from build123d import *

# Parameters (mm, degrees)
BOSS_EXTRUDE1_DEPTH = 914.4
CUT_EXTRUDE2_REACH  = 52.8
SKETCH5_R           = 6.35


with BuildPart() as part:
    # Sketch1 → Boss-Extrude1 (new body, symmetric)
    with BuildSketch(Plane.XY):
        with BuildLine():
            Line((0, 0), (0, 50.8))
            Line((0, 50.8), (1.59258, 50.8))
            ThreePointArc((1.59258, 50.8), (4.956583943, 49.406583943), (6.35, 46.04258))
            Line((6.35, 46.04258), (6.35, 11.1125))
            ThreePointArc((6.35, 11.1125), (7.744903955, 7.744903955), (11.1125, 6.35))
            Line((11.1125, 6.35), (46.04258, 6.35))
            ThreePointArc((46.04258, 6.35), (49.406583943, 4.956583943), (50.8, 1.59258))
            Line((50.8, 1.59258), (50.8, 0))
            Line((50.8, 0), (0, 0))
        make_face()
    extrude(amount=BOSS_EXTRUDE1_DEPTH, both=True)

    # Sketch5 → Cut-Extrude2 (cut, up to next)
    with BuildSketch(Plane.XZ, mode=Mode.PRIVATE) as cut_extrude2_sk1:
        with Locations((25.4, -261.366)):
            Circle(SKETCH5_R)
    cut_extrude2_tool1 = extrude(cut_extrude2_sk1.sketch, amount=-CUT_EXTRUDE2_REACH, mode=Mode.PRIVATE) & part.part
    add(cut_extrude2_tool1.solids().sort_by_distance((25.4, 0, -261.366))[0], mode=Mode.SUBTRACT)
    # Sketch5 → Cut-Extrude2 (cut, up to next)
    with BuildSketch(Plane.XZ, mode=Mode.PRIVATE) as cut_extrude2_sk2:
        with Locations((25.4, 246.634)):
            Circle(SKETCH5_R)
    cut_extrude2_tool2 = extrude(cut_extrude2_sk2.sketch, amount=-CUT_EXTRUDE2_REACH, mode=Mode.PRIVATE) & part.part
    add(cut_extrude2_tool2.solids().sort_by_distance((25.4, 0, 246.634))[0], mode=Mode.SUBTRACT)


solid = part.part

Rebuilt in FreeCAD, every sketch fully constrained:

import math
import FreeCAD as App
import Part
import Sketcher

V = App.Vector
Q = App.Units.Quantity

doc = App.newDocument("Part")
body = doc.addObject("PartDesign::Body", "Body")

sketch1 = body.newObject("Sketcher::SketchObject", "Sketch")
sketch1.AttachmentSupport = (doc.getObject("XY_Plane"), [""])
sketch1.MapMode = "FlatFace"
sketch1.addGeometry(Part.LineSegment(V(0, 50.8, 0), V(0, 0, 0)), False)
sketch1.addGeometry(Part.LineSegment(V(0, 0, 0), V(50.8, 0, 0)), False)
sketch1.addGeometry(Part.LineSegment(V(50.8, 0, 0), V(50.8, 1.6, 0)), False)
sketch1.addGeometry(Part.ArcOfCircle(Part.Circle(V(46, 1.6, 0), V(0, 0, 1), 4.8), math.radians(0), math.radians(90)), False)
sketch1.addGeometry(Part.LineSegment(V(46, 6.3, 0), V(11.1, 6.3, 0)), False)
sketch1.addGeometry(Part.ArcOfCircle(Part.Circle(V(11.1, 11.1, 0), V(0, 0, 1), 4.8), math.radians(-180), math.radians(-90)), False)
sketch1.addGeometry(Part.LineSegment(V(6.3, 11.1, 0), V(6.3, 46, 0)), False)
sketch1.addGeometry(Part.ArcOfCircle(Part.Circle(V(1.6, 46, 0), V(0, 0, 1), 4.8), math.radians(0), math.radians(90)), False)
sketch1.addGeometry(Part.LineSegment(V(1.6, 50.8, 0), V(0, 50.8, 0)), False)
sketch1.addConstraint(Sketcher.Constraint("Coincident", 0, 2, 1, 1))
sketch1.addConstraint(Sketcher.Constraint("Coincident", 1, 2, 2, 1))
sketch1.addConstraint(Sketcher.Constraint("Tangent", 2, 2, 3, 1))
sketch1.addConstraint(Sketcher.Constraint("Tangent", 3, 2, 4, 1))
sketch1.addConstraint(Sketcher.Constraint("Tangent", 4, 2, 5, 2))
sketch1.addConstraint(Sketcher.Constraint("Tangent", 5, 1, 6, 1))
sketch1.addConstraint(Sketcher.Constraint("Tangent", 6, 2, 7, 1))
sketch1.addConstraint(Sketcher.Constraint("Tangent", 7, 2, 8, 1))
sketch1.addConstraint(Sketcher.Constraint("Coincident", 8, 2, 0, 1))
sketch1.addConstraint(Sketcher.Constraint("Vertical", 0))
sketch1.addConstraint(Sketcher.Constraint("Horizontal", 1))
sketch1.addConstraint(Sketcher.Constraint("Vertical", 2))
sketch1.addConstraint(Sketcher.Constraint("Horizontal", 4))
sketch1.addConstraint(Sketcher.Constraint("Vertical", 6))
sketch1.addConstraint(Sketcher.Constraint("Horizontal", 8))
sketch1.addConstraint(Sketcher.Constraint("Coincident", 0, 2, -1, 1))
sketch1.addConstraint(Sketcher.Constraint("Equal", 3, 7))
sketch1.addConstraint(Sketcher.Constraint("Equal", 1, 0))
sketch1.addConstraint(Sketcher.Constraint("Equal", 8, 2))
sketch1.addConstraint(Sketcher.Constraint("DistanceX", 1, 1, 1, 2, Q("2 in")))
sketch1.addConstraint(Sketcher.Constraint("Radius", 5, Q("0.1875 in")))
sketch1.addConstraint(Sketcher.Constraint("Radius", 3, Q("0.1873 in")))
sketch1.addConstraint(Sketcher.Constraint("DistanceY", -1, 1, 3, 2, Q("0.25 in")))
pad1 = body.newObject("PartDesign::Pad", "Pad")
pad1.Profile = sketch1
pad1.Length = Q("72 in")
pad1.Midplane = True

sketch2 = body.newObject("Sketcher::SketchObject", "Sketch001")
sketch2.AttachmentSupport = (doc.getObject("XZ_Plane"), [""])
sketch2.MapMode = "FlatFace"
sketch2.addGeometry(Part.Circle(V(25, -261, 0), V(0, 0, 1), 6), False)
sketch2.addConstraint(Sketcher.Constraint("Diameter", 0, Q("0.5 in")))
sketch2.addConstraint(Sketcher.Constraint("DistanceX", -1, 1, 0, 3, Q("1 in")))
sketch2.addConstraint(Sketcher.Constraint("DistanceY", 0, 3, -1, 1, Q("10.29 in")))
pocket1 = body.newObject("PartDesign::Pocket", "Pocket")
pocket1.Profile = sketch2
pocket1.Type = "UpToFirst"

sketch3 = body.newObject("Sketcher::SketchObject", "Sketch002")
sketch3.AttachmentSupport = (doc.getObject("XZ_Plane"), [""])
sketch3.MapMode = "FlatFace"
sketch3.addGeometry(Part.Circle(V(25, 247, 0), V(0, 0, 1), 6), False)
sketch3.addConstraint(Sketcher.Constraint("Diameter", 0, Q("0.5 in")))
sketch3.addConstraint(Sketcher.Constraint("DistanceX", -1, 1, 0, 3, Q("1 in")))
sketch3.addConstraint(Sketcher.Constraint("DistanceY", -1, 1, 0, 3, Q("9.71 in")))
pocket2 = body.newObject("PartDesign::Pocket", "Pocket001")
pocket2.Profile = sketch3
pocket2.Type = "UpToFirst"

doc.recompute()
